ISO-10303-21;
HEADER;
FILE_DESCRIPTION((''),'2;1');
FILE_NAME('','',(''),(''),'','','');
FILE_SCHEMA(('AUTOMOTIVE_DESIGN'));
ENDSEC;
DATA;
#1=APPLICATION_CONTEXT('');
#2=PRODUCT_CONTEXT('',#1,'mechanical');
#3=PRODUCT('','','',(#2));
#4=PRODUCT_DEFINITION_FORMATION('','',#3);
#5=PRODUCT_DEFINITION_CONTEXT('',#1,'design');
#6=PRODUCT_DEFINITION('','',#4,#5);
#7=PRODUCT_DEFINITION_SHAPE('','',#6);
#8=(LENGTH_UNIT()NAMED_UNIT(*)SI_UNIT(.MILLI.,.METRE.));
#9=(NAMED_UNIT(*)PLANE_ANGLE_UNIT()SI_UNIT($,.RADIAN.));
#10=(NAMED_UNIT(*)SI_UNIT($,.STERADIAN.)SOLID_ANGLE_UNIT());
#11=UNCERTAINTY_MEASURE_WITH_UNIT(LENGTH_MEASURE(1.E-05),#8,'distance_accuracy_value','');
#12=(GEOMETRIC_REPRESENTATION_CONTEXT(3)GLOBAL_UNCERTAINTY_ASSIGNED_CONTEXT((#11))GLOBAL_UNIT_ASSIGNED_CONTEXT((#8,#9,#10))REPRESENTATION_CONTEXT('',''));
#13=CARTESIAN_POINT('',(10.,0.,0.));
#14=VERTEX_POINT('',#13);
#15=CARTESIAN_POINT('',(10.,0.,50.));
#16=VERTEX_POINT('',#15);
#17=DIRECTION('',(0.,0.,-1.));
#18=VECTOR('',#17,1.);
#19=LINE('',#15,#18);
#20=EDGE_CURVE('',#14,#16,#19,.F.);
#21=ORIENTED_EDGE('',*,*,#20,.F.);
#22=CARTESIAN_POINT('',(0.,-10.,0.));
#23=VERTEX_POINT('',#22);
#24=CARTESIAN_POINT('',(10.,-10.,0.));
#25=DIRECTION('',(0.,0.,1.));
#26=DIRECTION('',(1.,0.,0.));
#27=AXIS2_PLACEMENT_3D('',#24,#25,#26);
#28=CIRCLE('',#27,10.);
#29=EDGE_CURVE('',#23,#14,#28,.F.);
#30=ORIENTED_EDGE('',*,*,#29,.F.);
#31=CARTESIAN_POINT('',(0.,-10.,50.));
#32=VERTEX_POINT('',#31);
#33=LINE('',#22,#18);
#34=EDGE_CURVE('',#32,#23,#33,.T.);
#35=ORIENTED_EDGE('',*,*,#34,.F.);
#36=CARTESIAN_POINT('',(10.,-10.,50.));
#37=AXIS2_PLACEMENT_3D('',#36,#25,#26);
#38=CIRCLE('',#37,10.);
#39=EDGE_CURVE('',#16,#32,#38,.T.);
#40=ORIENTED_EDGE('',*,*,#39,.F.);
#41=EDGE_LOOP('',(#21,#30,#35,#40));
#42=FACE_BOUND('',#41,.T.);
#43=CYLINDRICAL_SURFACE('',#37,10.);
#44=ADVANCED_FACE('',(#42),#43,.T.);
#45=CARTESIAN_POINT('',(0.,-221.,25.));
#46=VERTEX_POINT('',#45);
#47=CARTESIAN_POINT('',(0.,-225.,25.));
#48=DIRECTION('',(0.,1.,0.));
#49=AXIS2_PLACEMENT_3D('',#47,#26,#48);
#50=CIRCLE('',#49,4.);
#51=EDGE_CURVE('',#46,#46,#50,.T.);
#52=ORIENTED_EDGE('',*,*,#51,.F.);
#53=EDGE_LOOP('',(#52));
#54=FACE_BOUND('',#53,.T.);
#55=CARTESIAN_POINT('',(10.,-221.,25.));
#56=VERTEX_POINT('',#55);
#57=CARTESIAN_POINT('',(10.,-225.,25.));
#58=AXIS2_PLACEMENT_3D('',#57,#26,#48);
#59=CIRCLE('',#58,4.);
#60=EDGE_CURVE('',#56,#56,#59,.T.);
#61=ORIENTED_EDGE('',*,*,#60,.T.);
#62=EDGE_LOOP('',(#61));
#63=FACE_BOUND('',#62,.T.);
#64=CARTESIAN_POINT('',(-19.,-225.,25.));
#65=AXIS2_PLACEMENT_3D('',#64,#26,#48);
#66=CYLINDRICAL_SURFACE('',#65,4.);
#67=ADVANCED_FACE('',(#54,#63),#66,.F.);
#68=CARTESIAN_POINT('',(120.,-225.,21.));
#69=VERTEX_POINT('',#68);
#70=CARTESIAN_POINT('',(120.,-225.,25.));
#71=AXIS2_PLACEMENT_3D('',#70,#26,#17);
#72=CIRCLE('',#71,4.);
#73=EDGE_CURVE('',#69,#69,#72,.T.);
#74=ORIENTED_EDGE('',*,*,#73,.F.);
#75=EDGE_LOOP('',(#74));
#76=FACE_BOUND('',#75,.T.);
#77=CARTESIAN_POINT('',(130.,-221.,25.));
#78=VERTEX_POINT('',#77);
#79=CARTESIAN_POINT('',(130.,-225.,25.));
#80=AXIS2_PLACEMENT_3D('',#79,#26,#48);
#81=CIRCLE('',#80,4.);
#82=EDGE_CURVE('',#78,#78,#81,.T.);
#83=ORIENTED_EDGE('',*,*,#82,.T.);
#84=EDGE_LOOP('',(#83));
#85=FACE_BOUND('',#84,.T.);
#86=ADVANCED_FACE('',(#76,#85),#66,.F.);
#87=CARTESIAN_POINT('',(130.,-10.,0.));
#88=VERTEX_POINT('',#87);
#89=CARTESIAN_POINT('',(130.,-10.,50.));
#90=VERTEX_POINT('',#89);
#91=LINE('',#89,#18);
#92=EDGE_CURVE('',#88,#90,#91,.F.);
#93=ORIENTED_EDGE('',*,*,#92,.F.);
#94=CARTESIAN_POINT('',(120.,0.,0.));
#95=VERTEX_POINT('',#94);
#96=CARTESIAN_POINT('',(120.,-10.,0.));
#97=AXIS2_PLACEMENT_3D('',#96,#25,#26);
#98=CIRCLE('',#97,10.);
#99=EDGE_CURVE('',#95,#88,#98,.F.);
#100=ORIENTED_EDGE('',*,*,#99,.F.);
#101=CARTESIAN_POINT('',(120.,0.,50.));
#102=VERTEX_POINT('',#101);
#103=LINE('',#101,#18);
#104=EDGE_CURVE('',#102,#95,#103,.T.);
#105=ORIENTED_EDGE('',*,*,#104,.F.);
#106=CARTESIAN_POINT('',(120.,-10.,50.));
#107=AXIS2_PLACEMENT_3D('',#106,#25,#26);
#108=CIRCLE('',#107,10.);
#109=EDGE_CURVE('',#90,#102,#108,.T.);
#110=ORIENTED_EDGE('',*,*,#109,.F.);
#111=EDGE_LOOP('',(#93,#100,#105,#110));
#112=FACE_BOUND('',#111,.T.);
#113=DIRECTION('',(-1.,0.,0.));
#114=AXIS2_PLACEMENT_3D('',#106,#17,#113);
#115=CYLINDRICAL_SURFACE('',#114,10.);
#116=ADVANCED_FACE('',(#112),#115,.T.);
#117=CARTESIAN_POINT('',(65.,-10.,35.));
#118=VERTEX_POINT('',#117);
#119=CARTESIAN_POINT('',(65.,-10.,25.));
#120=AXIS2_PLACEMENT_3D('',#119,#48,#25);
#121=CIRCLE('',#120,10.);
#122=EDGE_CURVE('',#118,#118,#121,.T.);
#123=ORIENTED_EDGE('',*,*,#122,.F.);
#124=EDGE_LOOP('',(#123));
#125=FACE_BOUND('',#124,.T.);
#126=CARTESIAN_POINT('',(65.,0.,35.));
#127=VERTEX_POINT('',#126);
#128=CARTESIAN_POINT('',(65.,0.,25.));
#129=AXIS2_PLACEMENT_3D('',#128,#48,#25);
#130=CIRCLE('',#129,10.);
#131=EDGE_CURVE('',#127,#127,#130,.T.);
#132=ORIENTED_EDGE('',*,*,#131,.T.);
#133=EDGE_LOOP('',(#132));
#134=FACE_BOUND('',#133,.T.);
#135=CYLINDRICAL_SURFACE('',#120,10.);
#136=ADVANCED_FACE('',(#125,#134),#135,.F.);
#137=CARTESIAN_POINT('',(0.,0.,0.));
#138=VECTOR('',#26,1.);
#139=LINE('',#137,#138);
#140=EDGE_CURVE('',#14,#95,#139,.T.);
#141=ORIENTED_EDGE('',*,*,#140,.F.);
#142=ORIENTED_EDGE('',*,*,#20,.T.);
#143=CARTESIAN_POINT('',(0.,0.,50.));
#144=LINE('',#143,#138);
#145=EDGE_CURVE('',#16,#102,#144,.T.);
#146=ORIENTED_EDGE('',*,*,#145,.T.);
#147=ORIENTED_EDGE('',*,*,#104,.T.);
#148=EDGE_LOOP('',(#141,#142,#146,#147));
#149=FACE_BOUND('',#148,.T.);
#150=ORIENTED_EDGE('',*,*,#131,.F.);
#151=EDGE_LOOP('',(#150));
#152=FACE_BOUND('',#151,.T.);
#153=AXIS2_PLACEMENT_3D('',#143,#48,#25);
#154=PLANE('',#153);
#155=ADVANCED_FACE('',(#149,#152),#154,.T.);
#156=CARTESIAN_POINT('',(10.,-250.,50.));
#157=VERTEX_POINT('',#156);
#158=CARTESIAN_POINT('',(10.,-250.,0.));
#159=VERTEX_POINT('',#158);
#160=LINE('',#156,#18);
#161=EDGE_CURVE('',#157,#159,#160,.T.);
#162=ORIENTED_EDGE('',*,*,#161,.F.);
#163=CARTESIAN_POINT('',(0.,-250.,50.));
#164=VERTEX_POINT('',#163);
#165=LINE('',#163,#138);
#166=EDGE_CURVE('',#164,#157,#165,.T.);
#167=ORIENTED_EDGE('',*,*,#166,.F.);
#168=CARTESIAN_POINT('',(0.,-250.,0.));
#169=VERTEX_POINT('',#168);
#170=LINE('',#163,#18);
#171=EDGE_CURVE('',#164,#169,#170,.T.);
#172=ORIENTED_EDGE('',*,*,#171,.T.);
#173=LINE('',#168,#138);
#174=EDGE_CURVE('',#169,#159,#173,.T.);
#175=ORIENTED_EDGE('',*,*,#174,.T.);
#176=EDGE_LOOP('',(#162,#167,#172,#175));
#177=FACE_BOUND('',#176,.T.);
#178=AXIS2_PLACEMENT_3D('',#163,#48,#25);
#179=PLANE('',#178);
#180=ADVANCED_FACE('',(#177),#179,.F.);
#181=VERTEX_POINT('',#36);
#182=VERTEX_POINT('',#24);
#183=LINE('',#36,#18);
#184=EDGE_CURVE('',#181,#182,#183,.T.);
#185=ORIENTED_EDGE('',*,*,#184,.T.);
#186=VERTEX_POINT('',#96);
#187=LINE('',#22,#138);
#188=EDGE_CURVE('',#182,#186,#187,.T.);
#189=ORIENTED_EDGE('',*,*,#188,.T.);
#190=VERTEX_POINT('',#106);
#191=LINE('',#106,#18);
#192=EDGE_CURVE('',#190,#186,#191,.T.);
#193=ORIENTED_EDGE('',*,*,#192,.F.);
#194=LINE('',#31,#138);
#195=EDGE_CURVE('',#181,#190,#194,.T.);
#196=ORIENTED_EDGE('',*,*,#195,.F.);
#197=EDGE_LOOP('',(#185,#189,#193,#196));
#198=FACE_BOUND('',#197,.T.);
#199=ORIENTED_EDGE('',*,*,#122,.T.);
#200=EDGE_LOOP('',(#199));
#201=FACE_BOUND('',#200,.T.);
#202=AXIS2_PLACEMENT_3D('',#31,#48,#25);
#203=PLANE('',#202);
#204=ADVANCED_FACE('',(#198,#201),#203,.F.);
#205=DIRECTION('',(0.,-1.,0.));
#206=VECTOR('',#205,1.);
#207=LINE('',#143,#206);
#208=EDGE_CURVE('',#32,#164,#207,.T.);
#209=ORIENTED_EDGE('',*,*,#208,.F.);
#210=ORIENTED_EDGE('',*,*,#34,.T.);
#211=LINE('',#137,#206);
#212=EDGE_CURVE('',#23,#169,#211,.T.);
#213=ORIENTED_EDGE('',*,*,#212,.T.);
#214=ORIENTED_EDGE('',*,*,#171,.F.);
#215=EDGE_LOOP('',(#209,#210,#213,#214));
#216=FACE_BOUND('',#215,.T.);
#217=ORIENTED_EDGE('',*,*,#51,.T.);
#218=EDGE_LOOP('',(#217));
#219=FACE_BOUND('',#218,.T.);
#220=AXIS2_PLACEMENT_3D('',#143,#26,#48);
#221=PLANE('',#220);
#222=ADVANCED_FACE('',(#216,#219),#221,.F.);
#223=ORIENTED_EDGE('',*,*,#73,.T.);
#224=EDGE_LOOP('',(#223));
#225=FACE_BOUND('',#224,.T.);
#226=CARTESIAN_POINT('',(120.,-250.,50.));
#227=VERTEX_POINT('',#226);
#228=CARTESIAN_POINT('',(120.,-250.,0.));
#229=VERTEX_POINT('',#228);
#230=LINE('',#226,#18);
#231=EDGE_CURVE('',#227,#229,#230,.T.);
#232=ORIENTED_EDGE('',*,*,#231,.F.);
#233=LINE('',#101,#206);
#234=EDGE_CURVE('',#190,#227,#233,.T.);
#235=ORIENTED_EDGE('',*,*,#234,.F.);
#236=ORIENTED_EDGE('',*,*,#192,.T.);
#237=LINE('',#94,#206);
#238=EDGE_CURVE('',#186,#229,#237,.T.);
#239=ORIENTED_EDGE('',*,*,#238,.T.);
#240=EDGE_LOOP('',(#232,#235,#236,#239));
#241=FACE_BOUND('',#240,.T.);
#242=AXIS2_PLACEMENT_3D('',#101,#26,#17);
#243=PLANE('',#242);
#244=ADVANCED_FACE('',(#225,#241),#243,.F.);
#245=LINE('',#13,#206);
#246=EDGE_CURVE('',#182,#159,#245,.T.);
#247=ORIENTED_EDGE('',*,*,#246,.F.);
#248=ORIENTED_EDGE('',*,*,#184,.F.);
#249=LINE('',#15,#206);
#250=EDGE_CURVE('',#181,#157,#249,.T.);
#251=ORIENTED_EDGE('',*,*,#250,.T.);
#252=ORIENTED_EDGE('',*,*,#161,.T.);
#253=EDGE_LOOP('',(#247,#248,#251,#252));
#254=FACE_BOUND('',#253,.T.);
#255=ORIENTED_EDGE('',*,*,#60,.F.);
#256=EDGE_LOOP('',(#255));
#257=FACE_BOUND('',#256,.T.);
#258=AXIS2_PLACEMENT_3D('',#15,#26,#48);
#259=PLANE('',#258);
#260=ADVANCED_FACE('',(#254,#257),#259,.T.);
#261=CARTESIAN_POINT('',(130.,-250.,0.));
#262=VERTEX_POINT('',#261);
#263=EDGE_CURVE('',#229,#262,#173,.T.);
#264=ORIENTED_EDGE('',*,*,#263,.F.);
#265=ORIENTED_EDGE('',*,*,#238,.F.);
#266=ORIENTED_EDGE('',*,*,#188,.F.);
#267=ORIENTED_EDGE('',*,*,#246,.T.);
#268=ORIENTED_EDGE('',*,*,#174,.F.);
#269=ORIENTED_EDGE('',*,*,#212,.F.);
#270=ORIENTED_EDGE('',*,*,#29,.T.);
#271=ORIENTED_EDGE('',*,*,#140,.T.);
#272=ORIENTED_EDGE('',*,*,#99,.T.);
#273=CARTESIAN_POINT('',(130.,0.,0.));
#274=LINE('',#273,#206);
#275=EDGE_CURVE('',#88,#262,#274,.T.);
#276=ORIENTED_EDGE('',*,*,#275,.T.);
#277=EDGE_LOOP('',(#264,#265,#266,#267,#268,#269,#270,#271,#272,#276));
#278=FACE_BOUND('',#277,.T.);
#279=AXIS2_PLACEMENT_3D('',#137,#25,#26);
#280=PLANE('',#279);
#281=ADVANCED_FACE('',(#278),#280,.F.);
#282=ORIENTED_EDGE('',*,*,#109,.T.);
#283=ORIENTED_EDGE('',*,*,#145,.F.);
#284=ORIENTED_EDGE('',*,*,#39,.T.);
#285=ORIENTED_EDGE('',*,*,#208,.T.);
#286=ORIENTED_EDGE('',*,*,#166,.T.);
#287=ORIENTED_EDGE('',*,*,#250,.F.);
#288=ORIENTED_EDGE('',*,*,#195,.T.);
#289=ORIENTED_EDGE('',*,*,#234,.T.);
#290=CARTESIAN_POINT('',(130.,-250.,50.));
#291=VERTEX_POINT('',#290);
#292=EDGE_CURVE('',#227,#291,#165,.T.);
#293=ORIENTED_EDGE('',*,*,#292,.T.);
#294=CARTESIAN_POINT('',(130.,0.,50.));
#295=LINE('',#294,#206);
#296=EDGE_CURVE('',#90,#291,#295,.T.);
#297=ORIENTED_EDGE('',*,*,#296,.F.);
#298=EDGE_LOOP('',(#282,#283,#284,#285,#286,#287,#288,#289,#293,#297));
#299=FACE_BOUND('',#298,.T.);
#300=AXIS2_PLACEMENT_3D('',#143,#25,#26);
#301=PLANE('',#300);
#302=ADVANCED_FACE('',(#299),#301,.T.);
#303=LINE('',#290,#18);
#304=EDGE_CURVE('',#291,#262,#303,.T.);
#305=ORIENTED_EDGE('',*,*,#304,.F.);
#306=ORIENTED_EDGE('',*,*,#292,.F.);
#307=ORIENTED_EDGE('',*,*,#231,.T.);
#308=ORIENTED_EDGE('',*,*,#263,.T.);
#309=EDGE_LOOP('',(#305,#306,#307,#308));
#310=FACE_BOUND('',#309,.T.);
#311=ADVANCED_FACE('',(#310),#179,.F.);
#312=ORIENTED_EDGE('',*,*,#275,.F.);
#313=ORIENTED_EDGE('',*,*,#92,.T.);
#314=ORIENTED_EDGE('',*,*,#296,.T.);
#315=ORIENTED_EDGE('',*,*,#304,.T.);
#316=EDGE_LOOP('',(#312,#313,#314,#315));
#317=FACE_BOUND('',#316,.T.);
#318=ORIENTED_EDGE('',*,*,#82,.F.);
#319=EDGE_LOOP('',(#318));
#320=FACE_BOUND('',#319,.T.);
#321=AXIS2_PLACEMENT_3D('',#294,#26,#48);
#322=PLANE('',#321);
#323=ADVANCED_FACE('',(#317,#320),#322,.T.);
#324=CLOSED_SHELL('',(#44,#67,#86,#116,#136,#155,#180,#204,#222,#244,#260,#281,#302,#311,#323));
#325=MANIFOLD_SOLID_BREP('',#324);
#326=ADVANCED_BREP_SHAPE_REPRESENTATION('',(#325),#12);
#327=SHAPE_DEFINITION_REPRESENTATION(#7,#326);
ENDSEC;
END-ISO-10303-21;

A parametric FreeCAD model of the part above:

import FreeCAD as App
import Part
import Sketcher
from FreeCAD import Vector


def edges_at(feature, points):
    """Names of the edges that pass closest to the given points."""
    edges = feature.Shape.Edges
    near = lambda p: min(range(len(edges)), key=lambda i: edges[i].distToShape(Part.Vertex(*p))[0])
    return sorted({f"Edge{near(p) + 1}" for p in points})

doc = App.newDocument("Part")
body = doc.addObject("PartDesign::Body", "Body")

# Sketch on XY plane
sketch1 = body.newObject("Sketcher::SketchObject", "Sketch")
sketch1.AttachmentSupport = (doc.getObject("XY_Plane"), [""])
sketch1.MapMode = "FlatFace"
sketch1.addGeometry(Part.LineSegment(Vector(10, -10, 0), Vector(120, -10, 0)), False)
sketch1.addGeometry(Part.LineSegment(Vector(120, -10, 0), Vector(120, -250, 0)), False)
sketch1.addGeometry(Part.LineSegment(Vector(120, -250, 0), Vector(130, -250, 0)), False)
sketch1.addGeometry(Part.LineSegment(Vector(130, -250, 0), Vector(130, 0, 0)), False)
sketch1.addGeometry(Part.LineSegment(Vector(130, 0, 0), Vector(0, 0, 0)), False)
sketch1.addGeometry(Part.LineSegment(Vector(0, 0, 0), Vector(0, -250, 0)), False)
sketch1.addGeometry(Part.LineSegment(Vector(0, -250, 0), Vector(10, -250, 0)), False)
sketch1.addGeometry(Part.LineSegment(Vector(10, -250, 0), Vector(10, -10, 0)), False)
sketch1.addConstraint(Sketcher.Constraint("Coincident", 0, 2, 1, 1))
sketch1.addConstraint(Sketcher.Constraint("Coincident", 1, 2, 2, 1))
sketch1.addConstraint(Sketcher.Constraint("Coincident", 2, 2, 3, 1))
sketch1.addConstraint(Sketcher.Constraint("Coincident", 3, 2, 4, 1))
sketch1.addConstraint(Sketcher.Constraint("Coincident", 4, 2, 5, 1))
sketch1.addConstraint(Sketcher.Constraint("Coincident", 5, 2, 6, 1))
sketch1.addConstraint(Sketcher.Constraint("Coincident", 6, 2, 7, 1))
sketch1.addConstraint(Sketcher.Constraint("Coincident", 7, 2, 0, 1))
sketch1.addConstraint(Sketcher.Constraint("Horizontal", 0))
sketch1.addConstraint(Sketcher.Constraint("Vertical", 1))
sketch1.addConstraint(Sketcher.Constraint("Horizontal", 2))
sketch1.addConstraint(Sketcher.Constraint("Vertical", 3))
sketch1.addConstraint(Sketcher.Constraint("Horizontal", 4))
sketch1.addConstraint(Sketcher.Constraint("Vertical", 5))
sketch1.addConstraint(Sketcher.Constraint("Horizontal", 6))
sketch1.addConstraint(Sketcher.Constraint("Vertical", 7))
sketch1.addConstraint(Sketcher.Constraint("Coincident", 4, 2, -1, 1))
sketch1.addConstraint(Sketcher.Constraint("Horizontal", 2, 2, 5, 2))
sketch1.addConstraint(Sketcher.Constraint("Equal", 2, 6))
sketch1.addConstraint(Sketcher.Constraint("DistanceX", 0, 1, 0, 2, 110.0))
sketch1.addConstraint(Sketcher.Constraint("DistanceX", 2, 1, 2, 2, 10.0))
sketch1.addConstraint(Sketcher.Constraint("DistanceY", 1, 2, 1, 1, 240.0))
sketch1.addConstraint(Sketcher.Constraint("DistanceY", 3, 1, 3, 2, 250.0))
pad1 = body.newObject("PartDesign::Pad", "Pad")
pad1.Profile = sketch1
pad1.Length = 50
doc.recompute()

fillet = body.newObject("PartDesign::Fillet", "Fillet")
fillet.Base = (pad1, edges_at(pad1, [(0, 0, 25), (130, 0, 25)]))
fillet.Radius = 10

# Sketch on YZ plane
sketch2 = body.newObject("Sketcher::SketchObject", "Sketch001")
sketch2.AttachmentSupport = (doc.getObject("YZ_Plane"), [""])
sketch2.MapMode = "FlatFace"
sketch2.AttachmentOffset = App.Placement(Vector(0, 0, 130), App.Rotation())
sketch2.addGeometry(Part.Circle(Vector(-225, 25, 0), Vector(0, 0, 1), 4), False)
sketch2.addConstraint(Sketcher.Constraint("Diameter", 0, 8.0))
sketch2.addConstraint(Sketcher.Constraint("DistanceX", 0, 3, -1, 1, 225.0))
sketch2.addConstraint(Sketcher.Constraint("DistanceY", -1, 1, 0, 3, 25.0))
pocket1 = body.newObject("PartDesign::Pocket", "Pocket")
pocket1.Profile = sketch2
pocket1.Length = 149

# Sketch on XZ plane
sketch3 = body.newObject("Sketcher::SketchObject", "Sketch002")
sketch3.AttachmentSupport = (doc.getObject("XZ_Plane"), [""])
sketch3.MapMode = "FlatFace"
sketch3.addGeometry(Part.Circle(Vector(65, 25, 0), Vector(0, 0, 1), 10), False)
sketch3.addConstraint(Sketcher.Constraint("Diameter", 0, 20.0))
sketch3.addConstraint(Sketcher.Constraint("DistanceX", -1, 1, 0, 3, 65.0))
sketch3.addConstraint(Sketcher.Constraint("DistanceY", -1, 1, 0, 3, 25.0))
pocket2 = body.newObject("PartDesign::Pocket", "Pocket001")
pocket2.Profile = sketch3
pocket2.Length = 10
pocket2.Reversed = True

doc.recompute()
